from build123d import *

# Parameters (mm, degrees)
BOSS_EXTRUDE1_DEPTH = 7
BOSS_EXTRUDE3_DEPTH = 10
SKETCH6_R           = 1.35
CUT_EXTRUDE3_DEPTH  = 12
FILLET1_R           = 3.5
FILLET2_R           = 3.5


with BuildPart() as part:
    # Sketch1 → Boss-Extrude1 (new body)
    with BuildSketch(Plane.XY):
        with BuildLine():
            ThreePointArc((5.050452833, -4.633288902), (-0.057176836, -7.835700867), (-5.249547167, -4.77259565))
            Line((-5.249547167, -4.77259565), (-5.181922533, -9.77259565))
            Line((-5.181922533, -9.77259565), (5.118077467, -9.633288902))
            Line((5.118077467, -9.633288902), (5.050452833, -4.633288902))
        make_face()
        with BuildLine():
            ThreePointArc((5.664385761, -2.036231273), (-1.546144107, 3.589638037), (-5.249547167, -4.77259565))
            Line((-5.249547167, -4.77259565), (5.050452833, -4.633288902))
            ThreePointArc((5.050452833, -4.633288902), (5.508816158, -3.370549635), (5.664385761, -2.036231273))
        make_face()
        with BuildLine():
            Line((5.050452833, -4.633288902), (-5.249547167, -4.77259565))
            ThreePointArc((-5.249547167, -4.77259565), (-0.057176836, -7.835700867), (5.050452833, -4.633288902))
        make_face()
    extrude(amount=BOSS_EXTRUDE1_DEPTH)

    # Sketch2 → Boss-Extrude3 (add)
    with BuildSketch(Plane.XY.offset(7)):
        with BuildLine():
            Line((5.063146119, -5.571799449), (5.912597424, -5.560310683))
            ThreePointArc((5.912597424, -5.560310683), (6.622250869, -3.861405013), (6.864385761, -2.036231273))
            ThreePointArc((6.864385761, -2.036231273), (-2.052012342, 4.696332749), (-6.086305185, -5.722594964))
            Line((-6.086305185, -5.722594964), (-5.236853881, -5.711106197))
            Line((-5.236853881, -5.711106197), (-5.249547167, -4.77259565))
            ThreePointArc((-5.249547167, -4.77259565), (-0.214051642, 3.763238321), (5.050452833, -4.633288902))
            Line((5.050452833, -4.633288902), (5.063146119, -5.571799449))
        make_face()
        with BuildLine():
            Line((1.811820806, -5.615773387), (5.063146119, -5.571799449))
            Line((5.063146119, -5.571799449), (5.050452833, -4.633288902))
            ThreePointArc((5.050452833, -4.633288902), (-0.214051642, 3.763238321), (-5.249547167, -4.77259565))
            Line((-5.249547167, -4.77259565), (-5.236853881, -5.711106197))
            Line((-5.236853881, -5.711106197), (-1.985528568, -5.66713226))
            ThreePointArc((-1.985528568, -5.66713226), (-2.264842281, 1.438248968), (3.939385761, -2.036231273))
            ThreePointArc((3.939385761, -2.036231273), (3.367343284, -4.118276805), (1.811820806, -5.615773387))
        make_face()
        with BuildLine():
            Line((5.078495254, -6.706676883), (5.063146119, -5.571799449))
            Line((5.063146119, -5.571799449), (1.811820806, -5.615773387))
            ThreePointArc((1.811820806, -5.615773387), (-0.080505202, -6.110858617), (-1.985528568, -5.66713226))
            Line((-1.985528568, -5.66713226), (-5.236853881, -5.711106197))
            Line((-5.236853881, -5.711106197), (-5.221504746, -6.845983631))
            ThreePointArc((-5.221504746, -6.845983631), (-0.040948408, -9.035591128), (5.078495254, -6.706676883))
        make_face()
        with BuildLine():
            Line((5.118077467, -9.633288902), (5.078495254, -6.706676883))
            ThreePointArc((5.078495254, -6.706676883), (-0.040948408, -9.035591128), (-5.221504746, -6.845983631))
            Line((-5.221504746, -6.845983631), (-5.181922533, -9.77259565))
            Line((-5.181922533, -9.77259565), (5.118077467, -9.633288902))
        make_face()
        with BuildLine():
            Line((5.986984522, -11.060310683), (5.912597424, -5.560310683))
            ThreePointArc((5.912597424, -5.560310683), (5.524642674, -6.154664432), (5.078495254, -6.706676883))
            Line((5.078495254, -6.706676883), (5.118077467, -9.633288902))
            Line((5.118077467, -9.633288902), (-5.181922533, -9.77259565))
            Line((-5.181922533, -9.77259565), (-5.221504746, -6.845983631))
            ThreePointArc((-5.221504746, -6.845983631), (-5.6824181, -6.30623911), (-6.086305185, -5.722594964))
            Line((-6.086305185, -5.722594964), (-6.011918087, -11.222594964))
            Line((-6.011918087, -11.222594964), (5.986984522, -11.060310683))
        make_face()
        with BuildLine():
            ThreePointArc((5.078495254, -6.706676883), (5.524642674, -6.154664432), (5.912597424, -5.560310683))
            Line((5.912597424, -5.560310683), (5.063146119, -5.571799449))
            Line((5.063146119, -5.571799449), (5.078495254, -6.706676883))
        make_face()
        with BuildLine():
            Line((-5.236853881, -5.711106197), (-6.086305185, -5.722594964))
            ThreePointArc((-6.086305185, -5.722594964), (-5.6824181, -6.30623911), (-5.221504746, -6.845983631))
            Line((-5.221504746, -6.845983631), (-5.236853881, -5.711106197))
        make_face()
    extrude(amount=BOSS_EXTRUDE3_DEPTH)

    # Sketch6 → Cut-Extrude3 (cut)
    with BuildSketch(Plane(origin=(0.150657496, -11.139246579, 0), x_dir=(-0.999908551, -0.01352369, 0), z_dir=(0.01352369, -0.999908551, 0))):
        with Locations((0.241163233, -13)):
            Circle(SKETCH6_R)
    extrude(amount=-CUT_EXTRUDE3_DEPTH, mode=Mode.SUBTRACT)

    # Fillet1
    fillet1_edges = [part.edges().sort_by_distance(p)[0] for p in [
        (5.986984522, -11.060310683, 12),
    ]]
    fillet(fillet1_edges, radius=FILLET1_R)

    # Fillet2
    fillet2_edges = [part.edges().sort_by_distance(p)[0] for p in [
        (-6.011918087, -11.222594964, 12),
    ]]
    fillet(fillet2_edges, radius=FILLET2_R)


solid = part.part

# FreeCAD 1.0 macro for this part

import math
import FreeCAD as App
import Part
import Sketcher

V = App.Vector


def edges_at(feature, points):
    """Names of the edges that pass closest to the given points."""
    edges = feature.Shape.Edges
    near = lambda p: min(range(len(edges)), key=lambda i: edges[i].distToShape(Part.Vertex(*p))[0])
    return sorted({f"Edge{near(p) + 1}" for p in points})

doc = App.newDocument("Part")
body = doc.addObject("PartDesign::Body", "Body")

# Sketch on XY plane
sketch1 = doc.addObject("Sketcher::SketchObject", "Sketch")
body.addObject(sketch1)
sketch1.AttachmentSupport = (doc.XY_Plane, [""])
sketch1.MapMode = "FlatFace"
sketch1.addGeometry([
    Part.LineSegment(V(-5.2, -9.8, 0), V(5.1, -9.6, 0)),  # 0
    Part.LineSegment(V(5.1, -9.6, 0), V(5.1, -4.6, 0)),  # 1
    Part.ArcOfCircle(Part.Circle(V(-0.1, -2, 0), V(0, 0, 1), 5.8), math.radians(-27), math.radians(0)),  # 2
    Part.ArcOfCircle(Part.Circle(V(-0.1, -2, 0), V(0, 0, 1), 5.8), math.radians(0), math.radians(208)),  # 3
    Part.LineSegment(V(-5.2, -4.8, 0), V(-5.2, -9.8, 0)),  # 4
], False)
sketch1.addConstraint([
    Sketcher.Constraint("Coincident", 0, 2, 1, 1),
    Sketcher.Constraint("Coincident", 1, 2, 2, 1),
    Sketcher.Constraint("Tangent", 2, 2, 3, 1),
    Sketcher.Constraint("Coincident", 3, 2, 4, 1),
    Sketcher.Constraint("Coincident", 4, 2, 0, 1),
    Sketcher.Constraint("Equal", 2, 3),
    Sketcher.Constraint("Perpendicular", 0, 1),
    Sketcher.Constraint("Parallel", 1, 4),
    Sketcher.Constraint("Horizontal", 3, 3, 2, 2),
    Sketcher.Constraint("Equal", 1, 4),
    Sketcher.Constraint("Radius", 2, 5.8),
    Sketcher.Constraint("DistanceY", 0, 2, 1, 2, 5.0),
    Sketcher.Constraint("DistanceX", 3, 2, 1, 2, 10.3),
    Sketcher.Constraint("DistanceY", 2, 3, -1, 1, 2.036231),
    Sketcher.Constraint("DistanceY", 0, 2, -1, 1, 9.633289),
    Sketcher.Constraint("DistanceX", 2, 3, -1, 1, 0.135614),
])
pad1 = doc.addObject("PartDesign::Pad", "Pad")
body.addObject(pad1)
pad1.Profile = sketch1
pad1.Length = 7

# Sketch on XY plane
sketch2 = doc.addObject("Sketcher::SketchObject", "Sketch001")
body.addObject(sketch2)
sketch2.AttachmentSupport = (doc.XY_Plane, [""])
sketch2.MapMode = "FlatFace"
sketch2.AttachmentOffset = App.Placement(V(0, 0, 7), App.Rotation())
sketch2.addGeometry([
    Part.ArcOfCircle(Part.Circle(V(-0.1, -2, 0), V(0, 0, 1), 7), math.radians(0), math.radians(212)),  # 0
    Part.LineSegment(V(-6.1, -5.7, 0), V(-6, -11.2, 0)),  # 1
    Part.LineSegment(V(-6, -11.2, 0), V(6, -11.1, 0)),  # 2
    Part.LineSegment(V(6, -11.1, 0), V(5.9, -5.6, 0)),  # 3
    Part.ArcOfCircle(Part.Circle(V(-0.1, -2, 0), V(0, 0, 1), 7), math.radians(-30), math.radians(0)),  # 4
    Part.ArcOfCircle(Part.Circle(V(-0.1, -2, 0), V(0, 0, 1), 4.1), math.radians(0), math.radians(243)),  # 5
    Part.ArcOfCircle(Part.Circle(V(-0.1, -2, 0), V(0, 0, 1), 4.1), math.radians(-61), math.radians(0)),  # 6
    Part.ArcOfCircle(Part.Circle(V(-0.1, -2, 0), V(0, 0, 1), 4.1), math.radians(-117), math.radians(-61)),  # 7
], False)
sketch2.addConstraint([
    Sketcher.Constraint("Coincident", 0, 2, 1, 1),
    Sketcher.Constraint("Coincident", 1, 2, 2, 1),
    Sketcher.Constraint("Coincident", 2, 2, 3, 1),
    Sketcher.Constraint("Coincident", 3, 2, 4, 1),
    Sketcher.Constraint("Tangent", 4, 2, 0, 1),
    Sketcher.Constraint("Tangent", 5, 1, 6, 2),
    Sketcher.Constraint("Tangent", 6, 1, 7, 2),
    Sketcher.Constraint("Tangent", 7, 1, 5, 2),
    Sketcher.Constraint("Coincident", 5, 3, 0, 3),
    Sketcher.Constraint("Equal", 0, 4),
    Sketcher.Constraint("Perpendicular", 1, 2),
    Sketcher.Constraint("Perpendicular", 2, 3),
    Sketcher.Constraint("Horizontal", 7, 3, 4, 2),
    Sketcher.Constraint("Horizontal", 4, 2, 5, 1),
    Sketcher.Constraint("Equal", 1, 3),
    Sketcher.Constraint("Radius", 0, 7.0),
    Sketcher.Constraint("Distance", 2, 12.0),
    Sketcher.Constraint("Radius", 5, 4.075),
    Sketcher.Constraint("DistanceY", 1, 2, 0, 2, 5.5),
    Sketcher.Constraint("DistanceX", 6, 3, 2, 2, 6.122599),
    Sketcher.Constraint("DistanceY", 7, 1, 4, 3, 3.630901),
    Sketcher.Constraint("DistanceY", 0, 3, -1, 1, 2.036231),
    Sketcher.Constraint("DistanceX", 1, 2, -1, 1, 6.011918),
    Sketcher.Constraint("DistanceX", -1, 1, 6, 1, 1.811821),
])
pad2 = doc.addObject("PartDesign::Pad", "Pad001")
body.addObject(pad2)
pad2.Profile = sketch2
pad2.Length = 10

# Sketch on an angled plane
sketch3 = doc.addObject("Sketcher::SketchObject", "Sketch002")
body.addObject(sketch3)
sketch3.Placement = App.Placement(V(0.150657, -11.139247, 0), App.Rotation(V(-0.999908551, -0.01352369, 0), V(0, 0, -1.000000001), V(0.01352369, -0.999908551, 0), "ZXY"))
sketch3.addGeometry(Part.Circle(V(0.2, -13, 0), V(0, 0, 1), 1.4), False)
sketch3.addConstraint([
    Sketcher.Constraint("Diameter", 0, 2.7),
    Sketcher.Constraint("DistanceY", 0, 3, -1, 1, 13.0),
    Sketcher.Constraint("DistanceX", -1, 1, 0, 3, 0.241163),
])
pocket1 = doc.addObject("PartDesign::Pocket", "Pocket")
body.addObject(pocket1)
pocket1.Profile = sketch3
pocket1.Length = 12
doc.recompute()

fillet = doc.addObject("PartDesign::Fillet", "Fillet")
body.addObject(fillet)
fillet.Base = (pocket1, edges_at(pocket1, [(5.987, -11.06, 12)]))
fillet.Radius = 3.5
doc.recompute()

fillet2 = doc.addObject("PartDesign::Fillet", "Fillet001")
body.addObject(fillet2)
fillet2.Base = (fillet, edges_at(fillet, [(-6.012, -11.223, 12)]))
fillet2.Radius = 3.5

doc.recompute()
